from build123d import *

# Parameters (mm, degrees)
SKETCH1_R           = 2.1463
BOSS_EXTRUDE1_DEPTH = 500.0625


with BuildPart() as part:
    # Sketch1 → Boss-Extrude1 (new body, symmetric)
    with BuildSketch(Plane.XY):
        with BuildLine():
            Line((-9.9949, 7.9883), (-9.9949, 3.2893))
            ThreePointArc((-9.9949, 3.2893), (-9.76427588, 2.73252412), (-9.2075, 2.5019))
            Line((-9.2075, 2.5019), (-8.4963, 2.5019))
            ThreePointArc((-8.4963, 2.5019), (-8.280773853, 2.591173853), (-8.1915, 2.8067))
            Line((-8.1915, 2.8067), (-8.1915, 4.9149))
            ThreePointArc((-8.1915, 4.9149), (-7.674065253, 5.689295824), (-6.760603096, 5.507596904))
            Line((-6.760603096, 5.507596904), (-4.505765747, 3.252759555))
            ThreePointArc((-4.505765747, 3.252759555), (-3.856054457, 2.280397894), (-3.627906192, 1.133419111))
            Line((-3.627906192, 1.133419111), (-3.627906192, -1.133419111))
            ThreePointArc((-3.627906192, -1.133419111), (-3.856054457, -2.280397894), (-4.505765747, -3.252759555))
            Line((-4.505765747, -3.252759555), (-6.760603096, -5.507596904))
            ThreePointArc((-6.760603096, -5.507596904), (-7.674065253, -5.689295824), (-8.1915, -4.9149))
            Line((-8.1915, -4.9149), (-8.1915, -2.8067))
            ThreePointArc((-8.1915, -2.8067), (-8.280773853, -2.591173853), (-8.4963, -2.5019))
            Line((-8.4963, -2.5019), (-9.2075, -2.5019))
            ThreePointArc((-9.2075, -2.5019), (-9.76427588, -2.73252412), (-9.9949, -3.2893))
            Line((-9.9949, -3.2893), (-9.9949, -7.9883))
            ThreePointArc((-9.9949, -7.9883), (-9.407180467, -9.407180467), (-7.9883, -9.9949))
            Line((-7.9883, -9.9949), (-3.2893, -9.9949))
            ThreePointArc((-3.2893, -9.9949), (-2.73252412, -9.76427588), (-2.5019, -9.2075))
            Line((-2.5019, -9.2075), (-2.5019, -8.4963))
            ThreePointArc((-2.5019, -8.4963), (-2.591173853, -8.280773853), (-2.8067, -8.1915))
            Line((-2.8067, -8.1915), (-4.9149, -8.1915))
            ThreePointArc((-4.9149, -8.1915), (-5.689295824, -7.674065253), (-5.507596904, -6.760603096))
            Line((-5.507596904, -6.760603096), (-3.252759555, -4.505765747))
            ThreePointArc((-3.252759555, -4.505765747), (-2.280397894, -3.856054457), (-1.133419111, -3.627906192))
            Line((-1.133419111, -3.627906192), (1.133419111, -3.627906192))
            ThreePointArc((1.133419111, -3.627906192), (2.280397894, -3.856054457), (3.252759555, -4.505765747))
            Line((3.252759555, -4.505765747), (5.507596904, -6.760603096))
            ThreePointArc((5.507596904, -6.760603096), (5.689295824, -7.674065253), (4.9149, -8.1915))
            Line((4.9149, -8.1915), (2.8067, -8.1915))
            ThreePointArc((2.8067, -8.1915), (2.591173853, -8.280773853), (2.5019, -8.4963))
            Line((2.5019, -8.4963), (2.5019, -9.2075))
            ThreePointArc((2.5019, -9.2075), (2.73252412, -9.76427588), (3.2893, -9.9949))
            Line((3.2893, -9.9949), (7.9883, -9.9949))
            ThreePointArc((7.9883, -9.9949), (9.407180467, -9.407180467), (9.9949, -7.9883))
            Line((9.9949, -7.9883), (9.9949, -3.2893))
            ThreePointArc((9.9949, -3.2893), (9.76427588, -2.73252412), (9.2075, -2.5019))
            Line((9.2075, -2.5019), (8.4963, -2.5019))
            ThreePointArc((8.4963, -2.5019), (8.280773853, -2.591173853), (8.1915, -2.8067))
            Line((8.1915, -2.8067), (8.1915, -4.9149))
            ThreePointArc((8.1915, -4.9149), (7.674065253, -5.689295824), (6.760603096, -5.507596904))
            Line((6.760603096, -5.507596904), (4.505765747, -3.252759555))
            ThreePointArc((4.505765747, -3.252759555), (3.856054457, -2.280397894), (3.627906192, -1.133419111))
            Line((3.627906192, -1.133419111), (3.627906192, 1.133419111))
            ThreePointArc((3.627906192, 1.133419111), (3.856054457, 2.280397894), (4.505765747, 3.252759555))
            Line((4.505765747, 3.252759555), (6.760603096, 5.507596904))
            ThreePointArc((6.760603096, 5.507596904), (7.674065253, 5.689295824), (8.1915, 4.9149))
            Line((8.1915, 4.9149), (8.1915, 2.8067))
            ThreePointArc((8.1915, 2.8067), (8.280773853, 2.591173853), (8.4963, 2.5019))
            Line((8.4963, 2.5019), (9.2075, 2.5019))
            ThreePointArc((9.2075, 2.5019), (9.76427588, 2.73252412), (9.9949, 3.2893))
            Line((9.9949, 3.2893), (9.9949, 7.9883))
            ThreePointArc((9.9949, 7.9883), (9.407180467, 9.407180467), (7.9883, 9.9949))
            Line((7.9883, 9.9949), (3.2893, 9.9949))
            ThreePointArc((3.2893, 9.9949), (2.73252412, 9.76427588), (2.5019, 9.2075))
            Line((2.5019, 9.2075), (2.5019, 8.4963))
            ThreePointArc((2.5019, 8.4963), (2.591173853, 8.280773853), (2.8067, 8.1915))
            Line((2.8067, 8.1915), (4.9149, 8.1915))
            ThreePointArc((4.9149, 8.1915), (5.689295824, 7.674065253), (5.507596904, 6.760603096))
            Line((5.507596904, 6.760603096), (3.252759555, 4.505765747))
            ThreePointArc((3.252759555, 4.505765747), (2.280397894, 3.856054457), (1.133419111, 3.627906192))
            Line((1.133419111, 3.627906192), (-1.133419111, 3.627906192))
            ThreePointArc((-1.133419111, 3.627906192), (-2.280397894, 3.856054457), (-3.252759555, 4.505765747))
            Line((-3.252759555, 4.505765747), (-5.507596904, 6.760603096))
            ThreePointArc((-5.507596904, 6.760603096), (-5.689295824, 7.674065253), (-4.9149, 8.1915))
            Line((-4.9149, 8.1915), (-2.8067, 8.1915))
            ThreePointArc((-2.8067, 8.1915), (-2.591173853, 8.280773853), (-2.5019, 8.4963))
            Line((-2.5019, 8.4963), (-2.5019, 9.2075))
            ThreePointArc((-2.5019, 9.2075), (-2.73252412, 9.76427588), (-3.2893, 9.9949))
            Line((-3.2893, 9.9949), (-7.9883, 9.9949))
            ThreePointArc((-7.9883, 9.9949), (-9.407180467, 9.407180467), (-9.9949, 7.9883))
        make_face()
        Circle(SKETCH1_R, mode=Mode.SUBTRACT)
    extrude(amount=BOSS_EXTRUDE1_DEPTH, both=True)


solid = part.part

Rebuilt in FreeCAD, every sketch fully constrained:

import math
import FreeCAD as App
import Part
import Sketcher
from FreeCAD import Vector
Q = App.Units.Quantity

doc = App.newDocument("Part")
body = doc.addObject("PartDesign::Body", "Body")

sketch1 = body.newObject("Sketcher::SketchObject", "Sketch")
sketch1.AttachmentSupport = (doc.getObject("XY_Plane"), [""])
sketch1.MapMode = "FlatFace"
sketch1.addGeometry(Part.LineSegment(Vector(-9.99, 7.99, 0), Vector(-9.99, 3.29, 0)), False)
sketch1.addGeometry(Part.ArcOfCircle(Part.Circle(Vector(-9.21, 3.29, 0), Vector(0, 0, 1), 0.79), math.radians(180), math.radians(270)), False)
sketch1.addGeometry(Part.LineSegment(Vector(-9.21, 2.5, 0), Vector(-8.5, 2.5, 0)), False)
sketch1.addGeometry(Part.ArcOfCircle(Part.Circle(Vector(-8.5, 2.81, 0), Vector(0, 0, 1), 0.3), math.radians(-90), math.radians(0)), False)
sketch1.addGeometry(Part.LineSegment(Vector(-8.19, 2.81, 0), Vector(-8.19, 4.91, 0)), False)
sketch1.addGeometry(Part.ArcOfCircle(Part.Circle(Vector(-7.35, 4.91, 0), Vector(0, 0, 1), 0.84), math.radians(45), math.radians(180)), False)
sketch1.addGeometry(Part.LineSegment(Vector(-6.76, 5.51, 0), Vector(-4.51, 3.25, 0)), False)
sketch1.addGeometry(Part.ArcOfCircle(Part.Circle(Vector(-6.63, 1.13, 0), Vector(0, 0, 1), 3), math.radians(0), math.radians(45)), False)
sketch1.addGeometry(Part.LineSegment(Vector(-3.63, 1.13, 0), Vector(-3.63, -1.13, 0)), False)
sketch1.addGeometry(Part.ArcOfCircle(Part.Circle(Vector(-6.63, -1.13, 0), Vector(0, 0, 1), 3), math.radians(-45), math.radians(0)), False)
sketch1.addGeometry(Part.LineSegment(Vector(-4.51, -3.25, 0), Vector(-6.76, -5.51, 0)), False)
sketch1.addGeometry(Part.ArcOfCircle(Part.Circle(Vector(-7.35, -4.91, 0), Vector(0, 0, 1), 0.84), math.radians(180), math.radians(315)), False)
sketch1.addGeometry(Part.LineSegment(Vector(-8.19, -4.91, 0), Vector(-8.19, -2.81, 0)), False)
sketch1.addGeometry(Part.ArcOfCircle(Part.Circle(Vector(-8.5, -2.81, 0), Vector(0, 0, 1), 0.3), math.radians(0), math.radians(90)), False)
sketch1.addGeometry(Part.LineSegment(Vector(-8.5, -2.5, 0), Vector(-9.21, -2.5, 0)), False)
sketch1.addGeometry(Part.ArcOfCircle(Part.Circle(Vector(-9.21, -3.29, 0), Vector(0, 0, 1), 0.79), math.radians(90), math.radians(180)), False)
sketch1.addGeometry(Part.LineSegment(Vector(-9.99, -3.29, 0), Vector(-9.99, -7.99, 0)), False)
sketch1.addGeometry(Part.ArcOfCircle(Part.Circle(Vector(-7.99, -7.99, 0), Vector(0, 0, 1), 2.01), math.radians(180), math.radians(270)), False)
sketch1.addGeometry(Part.LineSegment(Vector(-7.99, -9.99, 0), Vector(-3.29, -9.99, 0)), False)
sketch1.addGeometry(Part.ArcOfCircle(Part.Circle(Vector(-3.29, -9.21, 0), Vector(0, 0, 1), 0.79), math.radians(-90), math.radians(0)), False)
sketch1.addGeometry(Part.LineSegment(Vector(-2.5, -9.21, 0), Vector(-2.5, -8.5, 0)), False)
sketch1.addGeometry(Part.ArcOfCircle(Part.Circle(Vector(-2.81, -8.5, 0), Vector(0, 0, 1), 0.3), math.radians(0), math.radians(90)), False)
sketch1.addGeometry(Part.LineSegment(Vector(-2.81, -8.19, 0), Vector(-4.91, -8.19, 0)), False)
sketch1.addGeometry(Part.ArcOfCircle(Part.Circle(Vector(-4.91, -7.35, 0), Vector(0, 0, 1), 0.84), math.radians(135), math.radians(270)), False)
sketch1.addGeometry(Part.LineSegment(Vector(-5.51, -6.76, 0), Vector(-3.25, -4.51, 0)), False)
sketch1.addGeometry(Part.ArcOfCircle(Part.Circle(Vector(-1.13, -6.63, 0), Vector(0, 0, 1), 3), math.radians(90), math.radians(135)), False)
sketch1.addGeometry(Part.LineSegment(Vector(-1.13, -3.63, 0), Vector(1.13, -3.63, 0)), False)
sketch1.addGeometry(Part.ArcOfCircle(Part.Circle(Vector(1.13, -6.63, 0), Vector(0, 0, 1), 3), math.radians(45), math.radians(90)), False)
sketch1.addGeometry(Part.LineSegment(Vector(3.25, -4.51, 0), Vector(5.51, -6.76, 0)), False)
sketch1.addGeometry(Part.ArcOfCircle(Part.Circle(Vector(4.91, -7.35, 0), Vector(0, 0, 1), 0.84), math.radians(-90), math.radians(45)), False)
sketch1.addGeometry(Part.LineSegment(Vector(4.91, -8.19, 0), Vector(2.81, -8.19, 0)), False)
sketch1.addGeometry(Part.ArcOfCircle(Part.Circle(Vector(2.81, -8.5, 0), Vector(0, 0, 1), 0.3), math.radians(90), math.radians(180)), False)
sketch1.addGeometry(Part.LineSegment(Vector(2.5, -8.5, 0), Vector(2.5, -9.21, 0)), False)
sketch1.addGeometry(Part.ArcOfCircle(Part.Circle(Vector(3.29, -9.21, 0), Vector(0, 0, 1), 0.79), math.radians(180), math.radians(270)), False)
sketch1.addGeometry(Part.LineSegment(Vector(3.29, -9.99, 0), Vector(7.99, -9.99, 0)), False)
sketch1.addGeometry(Part.ArcOfCircle(Part.Circle(Vector(7.99, -7.99, 0), Vector(0, 0, 1), 2.01), math.radians(-90), math.radians(0)), False)
sketch1.addGeometry(Part.LineSegment(Vector(9.99, -7.99, 0), Vector(9.99, -3.29, 0)), False)
sketch1.addGeometry(Part.ArcOfCircle(Part.Circle(Vector(9.21, -3.29, 0), Vector(0, 0, 1), 0.79), math.radians(0), math.radians(90)), False)
sketch1.addGeometry(Part.LineSegment(Vector(9.21, -2.5, 0), Vector(8.5, -2.5, 0)), False)
sketch1.addGeometry(Part.ArcOfCircle(Part.Circle(Vector(8.5, -2.81, 0), Vector(0, 0, 1), 0.3), math.radians(90), math.radians(180)), False)
sketch1.addGeometry(Part.LineSegment(Vector(8.19, -2.81, 0), Vector(8.19, -4.91, 0)), False)
sketch1.addGeometry(Part.ArcOfCircle(Part.Circle(Vector(7.35, -4.91, 0), Vector(0, 0, 1), 0.84), math.radians(-135), math.radians(0)), False)
sketch1.addGeometry(Part.LineSegment(Vector(6.76, -5.51, 0), Vector(4.51, -3.25, 0)), False)
sketch1.addGeometry(Part.ArcOfCircle(Part.Circle(Vector(6.63, -1.13, 0), Vector(0, 0, 1), 3), math.radians(180), math.radians(225)), False)
sketch1.addGeometry(Part.LineSegment(Vector(3.63, -1.13, 0), Vector(3.63, 1.13, 0)), False)
sketch1.addGeometry(Part.ArcOfCircle(Part.Circle(Vector(6.63, 1.13, 0), Vector(0, 0, 1), 3), math.radians(135), math.radians(180)), False)
sketch1.addGeometry(Part.LineSegment(Vector(4.51, 3.25, 0), Vector(6.76, 5.51, 0)), False)
sketch1.addGeometry(Part.ArcOfCircle(Part.Circle(Vector(7.35, 4.91, 0), Vector(0, 0, 1), 0.84), math.radians(0), math.radians(135)), False)
sketch1.addGeometry(Part.LineSegment(Vector(8.19, 4.91, 0), Vector(8.19, 2.81, 0)), False)
sketch1.addGeometry(Part.ArcOfCircle(Part.Circle(Vector(8.5, 2.81, 0), Vector(0, 0, 1), 0.3), math.radians(180), math.radians(270)), False)
sketch1.addGeometry(Part.LineSegment(Vector(8.5, 2.5, 0), Vector(9.21, 2.5, 0)), False)
sketch1.addGeometry(Part.ArcOfCircle(Part.Circle(Vector(9.21, 3.29, 0), Vector(0, 0, 1), 0.79), math.radians(-90), math.radians(0)), False)
sketch1.addGeometry(Part.LineSegment(Vector(9.99, 3.29, 0), Vector(9.99, 7.99, 0)), False)
sketch1.addGeometry(Part.ArcOfCircle(Part.Circle(Vector(7.99, 7.99, 0), Vector(0, 0, 1), 2.01), math.radians(0), math.radians(90)), False)
sketch1.addGeometry(Part.LineSegment(Vector(7.99, 9.99, 0), Vector(3.29, 9.99, 0)), False)
sketch1.addGeometry(Part.ArcOfCircle(Part.Circle(Vector(3.29, 9.21, 0), Vector(0, 0, 1), 0.79), math.radians(90), math.radians(180)), False)
sketch1.addGeometry(Part.LineSegment(Vector(2.5, 9.21, 0), Vector(2.5, 8.5, 0)), False)
sketch1.addGeometry(Part.ArcOfCircle(Part.Circle(Vector(2.81, 8.5, 0), Vector(0, 0, 1), 0.3), math.radians(180), math.radians(270)), False)
sketch1.addGeometry(Part.LineSegment(Vector(2.81, 8.19, 0), Vector(4.91, 8.19, 0)), False)
sketch1.addGeometry(Part.ArcOfCircle(Part.Circle(Vector(4.91, 7.35, 0), Vector(0, 0, 1), 0.84), math.radians(-45), math.radians(90)), False)
sketch1.addGeometry(Part.LineSegment(Vector(5.51, 6.76, 0), Vector(3.25, 4.51, 0)), False)
sketch1.addGeometry(Part.ArcOfCircle(Part.Circle(Vector(1.13, 6.63, 0), Vector(0, 0, 1), 3), math.radians(-90), math.radians(-45)), False)
sketch1.addGeometry(Part.LineSegment(Vector(1.13, 3.63, 0), Vector(-1.13, 3.63, 0)), False)
sketch1.addGeometry(Part.ArcOfCircle(Part.Circle(Vector(-1.13, 6.63, 0), Vector(0, 0, 1), 3), math.radians(-135), math.radians(-90)), False)
sketch1.addGeometry(Part.LineSegment(Vector(-3.25, 4.51, 0), Vector(-5.51, 6.76, 0)), False)
sketch1.addGeometry(Part.ArcOfCircle(Part.Circle(Vector(-4.91, 7.35, 0), Vector(0, 0, 1), 0.84), math.radians(90), math.radians(225)), False)
sketch1.addGeometry(Part.LineSegment(Vector(-4.91, 8.19, 0), Vector(-2.81, 8.19, 0)), False)
sketch1.addGeometry(Part.ArcOfCircle(Part.Circle(Vector(-2.81, 8.5, 0), Vector(0, 0, 1), 0.3), math.radians(-90), math.radians(0)), False)
sketch1.addGeometry(Part.LineSegment(Vector(-2.5, 8.5, 0), Vector(-2.5, 9.21, 0)), False)
sketch1.addGeometry(Part.ArcOfCircle(Part.Circle(Vector(-3.29, 9.21, 0), Vector(0, 0, 1), 0.79), math.radians(0), math.radians(90)), False)
sketch1.addGeometry(Part.LineSegment(Vector(-3.29, 9.99, 0), Vector(-7.99, 9.99, 0)), False)
sketch1.addGeometry(Part.ArcOfCircle(Part.Circle(Vector(-7.99, 7.99, 0), Vector(0, 0, 1), 2.01), math.radians(90), math.radians(180)), False)
sketch1.addGeometry(Part.Circle(Vector(0, 0, 0), Vector(0, 0, 1), 2.15), False)
sketch1.addConstraint(Sketcher.Constraint("Tangent", 0, 2, 1, 1))
sketch1.addConstraint(Sketcher.Constraint("Tangent", 1, 2, 2, 1))
sketch1.addConstraint(Sketcher.Constraint("Tangent", 2, 2, 3, 1))
sketch1.addConstraint(Sketcher.Constraint("Tangent", 3, 2, 4, 1))
sketch1.addConstraint(Sketcher.Constraint("Tangent", 4, 2, 5, 2))
sketch1.addConstraint(Sketcher.Constraint("Tangent", 5, 1, 6, 1))
sketch1.addConstraint(Sketcher.Constraint("Tangent", 6, 2, 7, 2))
sketch1.addConstraint(Sketcher.Constraint("Tangent", 7, 1, 8, 1))
sketch1.addConstraint(Sketcher.Constraint("Tangent", 8, 2, 9, 2))
sketch1.addConstraint(Sketcher.Constraint("Tangent", 9, 1, 10, 1))
sketch1.addConstraint(Sketcher.Constraint("Tangent", 10, 2, 11, 2))
sketch1.addConstraint(Sketcher.Constraint("Tangent", 11, 1, 12, 1))
sketch1.addConstraint(Sketcher.Constraint("Tangent", 12, 2, 13, 1))
sketch1.addConstraint(Sketcher.Constraint("Tangent", 13, 2, 14, 1))
sketch1.addConstraint(Sketcher.Constraint("Tangent", 14, 2, 15, 1))
sketch1.addConstraint(Sketcher.Constraint("Tangent", 15, 2, 16, 1))
sketch1.addConstraint(Sketcher.Constraint("Tangent", 16, 2, 17, 1))
sketch1.addConstraint(Sketcher.Constraint("Tangent", 17, 2, 18, 1))
sketch1.addConstraint(Sketcher.Constraint("Tangent", 18, 2, 19, 1))
sketch1.addConstraint(Sketcher.Constraint("Tangent", 19, 2, 20, 1))
sketch1.addConstraint(Sketcher.Constraint("Tangent", 20, 2, 21, 1))
sketch1.addConstraint(Sketcher.Constraint("Tangent", 21, 2, 22, 1))
sketch1.addConstraint(Sketcher.Constraint("Tangent", 22, 2, 23, 2))
sketch1.addConstraint(Sketcher.Constraint("Tangent", 23, 1, 24, 1))
sketch1.addConstraint(Sketcher.Constraint("Tangent", 24, 2, 25, 2))
sketch1.addConstraint(Sketcher.Constraint("Tangent", 25, 1, 26, 1))
sketch1.addConstraint(Sketcher.Constraint("Tangent", 26, 2, 27, 2))
sketch1.addConstraint(Sketcher.Constraint("Tangent", 27, 1, 28, 1))
sketch1.addConstraint(Sketcher.Constraint("Tangent", 28, 2, 29, 2))
sketch1.addConstraint(Sketcher.Constraint("Tangent", 29, 1, 30, 1))
sketch1.addConstraint(Sketcher.Constraint("Tangent", 30, 2, 31, 1))
sketch1.addConstraint(Sketcher.Constraint("Tangent", 31, 2, 32, 1))
sketch1.addConstraint(Sketcher.Constraint("Tangent", 32, 2, 33, 1))
sketch1.addConstraint(Sketcher.Constraint("Tangent", 33, 2, 34, 1))
sketch1.addConstraint(Sketcher.Constraint("Tangent", 34, 2, 35, 1))
sketch1.addConstraint(Sketcher.Constraint("Tangent", 35, 2, 36, 1))
sketch1.addConstraint(Sketcher.Constraint("Tangent", 36, 2, 37, 1))
sketch1.addConstraint(Sketcher.Constraint("Tangent", 37, 2, 38, 1))
sketch1.addConstraint(Sketcher.Constraint("Tangent", 38, 2, 39, 1))
sketch1.addConstraint(Sketcher.Constraint("Tangent", 39, 2, 40, 1))
sketch1.addConstraint(Sketcher.Constraint("Tangent", 40, 2, 41, 2))
sketch1.addConstraint(Sketcher.Constraint("Tangent", 41, 1, 42, 1))
sketch1.addConstraint(Sketcher.Constraint("Tangent", 42, 2, 43, 2))
sketch1.addConstraint(Sketcher.Constraint("Tangent", 43, 1, 44, 1))
sketch1.addConstraint(Sketcher.Constraint("Tangent", 44, 2, 45, 2))
sketch1.addConstraint(Sketcher.Constraint("Tangent", 45, 1, 46, 1))
sketch1.addConstraint(Sketcher.Constraint("Tangent", 46, 2, 47, 2))
sketch1.addConstraint(Sketcher.Constraint("Tangent", 47, 1, 48, 1))
sketch1.addConstraint(Sketcher.Constraint("Tangent", 48, 2, 49, 1))
sketch1.addConstraint(Sketcher.Constraint("Tangent", 49, 2, 50, 1))
sketch1.addConstraint(Sketcher.Constraint("Tangent", 50, 2, 51, 1))
sketch1.addConstraint(Sketcher.Constraint("Tangent", 51, 2, 52, 1))
sketch1.addConstraint(Sketcher.Constraint("Tangent", 52, 2, 53, 1))
sketch1.addConstraint(Sketcher.Constraint("Tangent", 53, 2, 54, 1))
sketch1.addConstraint(Sketcher.Constraint("Tangent", 54, 2, 55, 1))
sketch1.addConstraint(Sketcher.Constraint("Tangent", 55, 2, 56, 1))
sketch1.addConstraint(Sketcher.Constraint("Tangent", 56, 2, 57, 1))
sketch1.addConstraint(Sketcher.Constraint("Tangent", 57, 2, 58, 1))
sketch1.addConstraint(Sketcher.Constraint("Tangent", 58, 2, 59, 2))
sketch1.addConstraint(Sketcher.Constraint("Tangent", 59, 1, 60, 1))
sketch1.addConstraint(Sketcher.Constraint("Tangent", 60, 2, 61, 2))
sketch1.addConstraint(Sketcher.Constraint("Tangent", 61, 1, 62, 1))
sketch1.addConstraint(Sketcher.Constraint("Tangent", 62, 2, 63, 2))
sketch1.addConstraint(Sketcher.Constraint("Tangent", 63, 1, 64, 1))
sketch1.addConstraint(Sketcher.Constraint("Tangent", 64, 2, 65, 2))
sketch1.addConstraint(Sketcher.Constraint("Tangent", 65, 1, 66, 1))
sketch1.addConstraint(Sketcher.Constraint("Tangent", 66, 2, 67, 1))
sketch1.addConstraint(Sketcher.Constraint("Tangent", 67, 2, 68, 1))
sketch1.addConstraint(Sketcher.Constraint("Tangent", 68, 2, 69, 1))
sketch1.addConstraint(Sketcher.Constraint("Tangent", 69, 2, 70, 1))
sketch1.addConstraint(Sketcher.Constraint("Tangent", 70, 2, 71, 1))
sketch1.addConstraint(Sketcher.Constraint("Tangent", 71, 2, 0, 1))
sketch1.addConstraint(Sketcher.Constraint("Vertical", 0))
sketch1.addConstraint(Sketcher.Constraint("Horizontal", 2))
sketch1.addConstraint(Sketcher.Constraint("Vertical", 4))
sketch1.addConstraint(Sketcher.Constraint("Vertical", 8))
sketch1.addConstraint(Sketcher.Constraint("Vertical", 12))
sketch1.addConstraint(Sketcher.Constraint("Horizontal", 14))
sketch1.addConstraint(Sketcher.Constraint("Vertical", 16))
sketch1.addConstraint(Sketcher.Constraint("Horizontal", 18))
sketch1.addConstraint(Sketcher.Constraint("Vertical", 20))
sketch1.addConstraint(Sketcher.Constraint("Horizontal", 22))
sketch1.addConstraint(Sketcher.Constraint("Horizontal", 26))
sketch1.addConstraint(Sketcher.Constraint("Horizontal", 30))
sketch1.addConstraint(Sketcher.Constraint("Vertical", 32))
sketch1.addConstraint(Sketcher.Constraint("Horizontal", 34))
sketch1.addConstraint(Sketcher.Constraint("Vertical", 36))
sketch1.addConstraint(Sketcher.Constraint("Horizontal", 38))
sketch1.addConstraint(Sketcher.Constraint("Vertical", 40))
sketch1.addConstraint(Sketcher.Constraint("Vertical", 44))
sketch1.addConstraint(Sketcher.Constraint("Vertical", 48))
sketch1.addConstraint(Sketcher.Constraint("Horizontal", 50))
sketch1.addConstraint(Sketcher.Constraint("Vertical", 52))
sketch1.addConstraint(Sketcher.Constraint("Horizontal", 54))
sketch1.addConstraint(Sketcher.Constraint("Vertical", 56))
sketch1.addConstraint(Sketcher.Constraint("Horizontal", 58))
sketch1.addConstraint(Sketcher.Constraint("Horizontal", 62))
sketch1.addConstraint(Sketcher.Constraint("Horizontal", 66))
sketch1.addConstraint(Sketcher.Constraint("Vertical", 68))
sketch1.addConstraint(Sketcher.Constraint("Horizontal", 70))
sketch1.addConstraint(Sketcher.Constraint("Coincident", 72, 3, -1, 1))
sketch1.addConstraint(Sketcher.Constraint("Equal", 7, 9))
sketch1.addConstraint(Sketcher.Constraint("Equal", 5, 11))
sketch1.addConstraint(Sketcher.Constraint("Equal", 3, 13))
sketch1.addConstraint(Sketcher.Constraint("Equal", 1, 15))
sketch1.addConstraint(Sketcher.Constraint("Equal", 15, 19))
sketch1.addConstraint(Sketcher.Constraint("Equal", 13, 21))
sketch1.addConstraint(Sketcher.Constraint("Equal", 11, 23))
sketch1.addConstraint(Sketcher.Constraint("Equal", 9, 25))
sketch1.addConstraint(Sketcher.Constraint("Equal", 25, 27))
sketch1.addConstraint(Sketcher.Constraint("Equal", 23, 29))
sketch1.addConstraint(Sketcher.Constraint("Equal", 21, 31))
sketch1.addConstraint(Sketcher.Constraint("Equal", 19, 33))
sketch1.addConstraint(Sketcher.Constraint("Equal", 17, 35))
sketch1.addConstraint(Sketcher.Constraint("Equal", 33, 37))
sketch1.addConstraint(Sketcher.Constraint("Equal", 31, 39))
sketch1.addConstraint(Sketcher.Constraint("Equal", 29, 41))
sketch1.addConstraint(Sketcher.Constraint("Equal", 27, 43))
sketch1.addConstraint(Sketcher.Constraint("Equal", 43, 45))
sketch1.addConstraint(Sketcher.Constraint("Equal", 41, 47))
sketch1.addConstraint(Sketcher.Constraint("Equal", 39, 49))
sketch1.addConstraint(Sketcher.Constraint("Equal", 37, 51))
sketch1.addConstraint(Sketcher.Constraint("Equal", 35, 53))
sketch1.addConstraint(Sketcher.Constraint("Equal", 51, 55))
sketch1.addConstraint(Sketcher.Constraint("Equal", 49, 57))
sketch1.addConstraint(Sketcher.Constraint("Equal", 47, 59))
sketch1.addConstraint(Sketcher.Constraint("Equal", 45, 61))
sketch1.addConstraint(Sketcher.Constraint("Equal", 61, 63))
sketch1.addConstraint(Sketcher.Constraint("Equal", 59, 65))
sketch1.addConstraint(Sketcher.Constraint("Equal", 57, 67))
sketch1.addConstraint(Sketcher.Constraint("Equal", 55, 69))
sketch1.addConstraint(Sketcher.Constraint("Equal", 53, 71))
sketch1.addConstraint(Sketcher.Constraint("Symmetric", 1, 3, 37, 3, -1, 1))
sketch1.addConstraint(Sketcher.Constraint("Symmetric", 5, 3, 41, 3, -1, 1))
sketch1.addConstraint(Sketcher.Constraint("Symmetric", 7, 3, 43, 3, -1, 1))
sketch1.addConstraint(Sketcher.Constraint("Symmetric", 11, 3, 47, 3, -1, 1))
sketch1.addConstraint(Sketcher.Constraint("Symmetric", 15, 3, 51, 3, -1, 1))
sketch1.addConstraint(Sketcher.Constraint("Symmetric", 19, 3, 55, 3, -1, 1))
sketch1.addConstraint(Sketcher.Constraint("Symmetric", 23, 3, 59, 3, -1, 1))
sketch1.addConstraint(Sketcher.Constraint("Symmetric", 25, 3, 61, 3, -1, 1))
sketch1.addConstraint(Sketcher.Constraint("Symmetric", 29, 3, 65, 3, -1, 1))
sketch1.addConstraint(Sketcher.Constraint("Symmetric", 33, 3, 69, 3, -1, 1))
sketch1.addConstraint(Sketcher.Constraint("Symmetric", 23, 3, 29, 3, -2))
sketch1.addConstraint(Sketcher.Constraint("Symmetric", 19, 3, 33, 3, -2))
sketch1.addConstraint(Sketcher.Constraint("Symmetric", 15, 3, 37, 3, -2))
sketch1.addConstraint(Sketcher.Constraint("Symmetric", 11, 3, 41, 3, -2))
sketch1.addConstraint(Sketcher.Constraint("Perpendicular", 6, 10))
sketch1.addConstraint(Sketcher.Constraint("Parallel", 10, 24))
sketch1.addConstraint(Sketcher.Constraint("Perpendicular", 24, 28))
sketch1.addConstraint(Sketcher.Constraint("Perpendicular", 42, 46))
sketch1.addConstraint(Sketcher.Constraint("Perpendicular", 60, 64))
sketch1.addConstraint(Sketcher.Constraint("Horizontal", 9, 3, 43, 3))
sketch1.addConstraint(Sketcher.Constraint("Equal", 70, 0))
sketch1.addConstraint(Sketcher.Constraint("Equal", 66, 4))
sketch1.addConstraint(Sketcher.Constraint("Equal", 62, 8))
sketch1.addConstraint(Sketcher.Constraint("Equal", 50, 20))
sketch1.addConstraint(Sketcher.Constraint("Equal", 10, 24))
sketch1.addConstraint(Sketcher.Constraint("Diameter", 72, Q("0.169 in")))
sketch1.addConstraint(Sketcher.Constraint("Radius", 1, Q("0.031 in")))
sketch1.addConstraint(Sketcher.Constraint("Radius", 3, Q("0.012 in")))
sketch1.addConstraint(Sketcher.Constraint("Radius", 5, Q("0.033 in")))
sketch1.addConstraint(Sketcher.Constraint("Radius", 7, Q("0.118 in")))
sketch1.addConstraint(Sketcher.Constraint("Radius", 17, Q("0.079 in")))
sketch1.addConstraint(Sketcher.Constraint("DistanceX", 2, 1, 2, 2, Q("0.028 in")))
sketch1.addConstraint(Sketcher.Constraint("DistanceX", 18, 1, 18, 2, Q("0.185 in")))
sketch1.addConstraint(Sketcher.Constraint("DistanceX", 22, 2, 22, 1, Q("0.083 in")))
sketch1.addConstraint(Sketcher.Constraint("DistanceX", 1, 3, -1, 1, Q("0.3625 in")))
sketch1.addConstraint(Sketcher.Constraint("DistanceX", 26, 1, 26, 2, 2.266838))
pad1 = body.newObject("PartDesign::Pad", "Pad")
pad1.Profile = sketch1
pad1.Length = Q("39.375 in")
pad1.Midplane = True

doc.recompute()
